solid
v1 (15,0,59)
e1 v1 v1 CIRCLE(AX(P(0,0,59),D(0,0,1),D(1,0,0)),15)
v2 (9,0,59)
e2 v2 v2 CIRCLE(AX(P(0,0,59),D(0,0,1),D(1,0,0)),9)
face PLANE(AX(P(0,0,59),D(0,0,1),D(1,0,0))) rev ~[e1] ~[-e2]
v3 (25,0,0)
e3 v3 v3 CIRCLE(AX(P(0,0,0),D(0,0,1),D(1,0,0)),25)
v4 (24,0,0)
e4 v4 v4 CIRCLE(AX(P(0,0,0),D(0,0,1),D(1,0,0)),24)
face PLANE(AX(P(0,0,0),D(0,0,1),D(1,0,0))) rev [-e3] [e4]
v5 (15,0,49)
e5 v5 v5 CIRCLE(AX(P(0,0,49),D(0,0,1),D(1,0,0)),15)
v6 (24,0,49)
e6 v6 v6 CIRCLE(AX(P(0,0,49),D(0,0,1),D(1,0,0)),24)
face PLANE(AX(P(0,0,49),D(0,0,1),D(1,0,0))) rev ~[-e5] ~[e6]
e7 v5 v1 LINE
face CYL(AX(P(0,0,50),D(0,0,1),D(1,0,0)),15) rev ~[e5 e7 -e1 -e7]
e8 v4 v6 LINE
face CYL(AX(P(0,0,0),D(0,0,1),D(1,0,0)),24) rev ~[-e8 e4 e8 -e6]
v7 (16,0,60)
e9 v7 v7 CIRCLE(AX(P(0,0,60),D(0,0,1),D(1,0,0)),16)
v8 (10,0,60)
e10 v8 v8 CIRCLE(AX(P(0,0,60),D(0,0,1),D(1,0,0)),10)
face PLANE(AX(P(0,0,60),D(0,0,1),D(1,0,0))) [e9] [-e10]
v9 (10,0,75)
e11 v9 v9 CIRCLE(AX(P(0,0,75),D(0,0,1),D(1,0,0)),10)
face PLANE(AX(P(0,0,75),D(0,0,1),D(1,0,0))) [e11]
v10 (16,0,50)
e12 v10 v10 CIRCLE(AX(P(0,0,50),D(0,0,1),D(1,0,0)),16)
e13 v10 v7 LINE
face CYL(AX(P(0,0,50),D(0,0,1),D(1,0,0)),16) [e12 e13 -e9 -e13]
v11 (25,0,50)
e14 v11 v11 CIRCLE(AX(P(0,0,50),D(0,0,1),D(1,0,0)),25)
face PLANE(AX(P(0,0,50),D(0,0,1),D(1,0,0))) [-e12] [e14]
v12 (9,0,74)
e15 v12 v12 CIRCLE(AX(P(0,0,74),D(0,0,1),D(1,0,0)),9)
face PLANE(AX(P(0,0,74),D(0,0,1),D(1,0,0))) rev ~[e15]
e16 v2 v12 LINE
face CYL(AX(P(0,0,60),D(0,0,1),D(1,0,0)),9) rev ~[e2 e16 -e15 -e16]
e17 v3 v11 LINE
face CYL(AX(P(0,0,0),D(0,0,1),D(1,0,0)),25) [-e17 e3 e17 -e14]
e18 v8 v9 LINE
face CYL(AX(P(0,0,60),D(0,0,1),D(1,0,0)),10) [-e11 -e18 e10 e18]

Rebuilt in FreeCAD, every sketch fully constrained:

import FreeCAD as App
import Part
import Sketcher
from FreeCAD import Vector
Q = App.Units.Quantity


def faces_at(feature, points):
    """Names of the faces that lie closest to the given points."""
    faces = feature.Shape.Faces
    near = lambda p: min(range(len(faces)), key=lambda i: faces[i].distToShape(Part.Vertex(*p))[0])
    return sorted({f"Face{near(p) + 1}" for p in points})


def add_polygon(sketch, points):
    """Adds a closed chain of lines whose ends are joined by coincident constraints."""
    first, n = sketch.GeometryCount, len(points)
    for a, b in zip(points, points[1:] + points[:1]):
        sketch.addGeometry(Part.LineSegment(App.Vector(*a, 0), App.Vector(*b, 0)), False)
    for i in range(n):
        sketch.addConstraint(Sketcher.Constraint("Coincident", first + i, 2, first + (i + 1) % n, 1))

doc = App.newDocument("Part")
body = doc.addObject("PartDesign::Body", "Body")

sketch1 = doc.addObject("Sketcher::SketchObject", "Sketch")
body.addObject(sketch1)
sketch1.AttachmentSupport = (doc.XZ_Plane, [""])
sketch1.MapMode = "FlatFace"
add_polygon(sketch1, [(0, 75), (0, 0), (25, 0), (25, 50), (16, 50), (16, 60), (10, 60), (10, 75)])
sketch1.addConstraint(Sketcher.Constraint("Vertical", 0))
sketch1.addConstraint(Sketcher.Constraint("Horizontal", 1))
sketch1.addConstraint(Sketcher.Constraint("Vertical", 2))
sketch1.addConstraint(Sketcher.Constraint("Horizontal", 3))
sketch1.addConstraint(Sketcher.Constraint("Vertical", 4))
sketch1.addConstraint(Sketcher.Constraint("Horizontal", 5))
sketch1.addConstraint(Sketcher.Constraint("Vertical", 6))
sketch1.addConstraint(Sketcher.Constraint("Horizontal", 7))
sketch1.addConstraint(Sketcher.Constraint("Coincident", 0, 2, -1, 1))
sketch1.addConstraint(Sketcher.Constraint("Equal", 7, 4))
sketch1.addConstraint(Sketcher.Constraint("DistanceX", 1, 1, 1, 2, Q("25 mm")))
sketch1.addConstraint(Sketcher.Constraint("DistanceX", 3, 2, 3, 1, Q("9 mm")))
sketch1.addConstraint(Sketcher.Constraint("DistanceX", 5, 2, 5, 1, Q("6 mm")))
sketch1.addConstraint(Sketcher.Constraint("DistanceY", 0, 2, 0, 1, Q("75 mm")))
sketch1.addConstraint(Sketcher.Constraint("DistanceY", 2, 1, 2, 2, Q("50 mm")))
revolution = doc.addObject("PartDesign::Revolution", "Revolution")
body.addObject(revolution)
revolution.Profile = sketch1
revolution.ReferenceAxis = (sketch1, ["V_Axis"])
revolution.Angle = 360
doc.recompute()

thickness = doc.addObject("PartDesign::Thickness", "Thickness")
body.addObject(thickness)
thickness.Base = (revolution, faces_at(revolution, [(0, 0, 0)]))
thickness.Value = 1
thickness.Reversed = True
thickness.Join = "Intersection"

doc.recompute()
